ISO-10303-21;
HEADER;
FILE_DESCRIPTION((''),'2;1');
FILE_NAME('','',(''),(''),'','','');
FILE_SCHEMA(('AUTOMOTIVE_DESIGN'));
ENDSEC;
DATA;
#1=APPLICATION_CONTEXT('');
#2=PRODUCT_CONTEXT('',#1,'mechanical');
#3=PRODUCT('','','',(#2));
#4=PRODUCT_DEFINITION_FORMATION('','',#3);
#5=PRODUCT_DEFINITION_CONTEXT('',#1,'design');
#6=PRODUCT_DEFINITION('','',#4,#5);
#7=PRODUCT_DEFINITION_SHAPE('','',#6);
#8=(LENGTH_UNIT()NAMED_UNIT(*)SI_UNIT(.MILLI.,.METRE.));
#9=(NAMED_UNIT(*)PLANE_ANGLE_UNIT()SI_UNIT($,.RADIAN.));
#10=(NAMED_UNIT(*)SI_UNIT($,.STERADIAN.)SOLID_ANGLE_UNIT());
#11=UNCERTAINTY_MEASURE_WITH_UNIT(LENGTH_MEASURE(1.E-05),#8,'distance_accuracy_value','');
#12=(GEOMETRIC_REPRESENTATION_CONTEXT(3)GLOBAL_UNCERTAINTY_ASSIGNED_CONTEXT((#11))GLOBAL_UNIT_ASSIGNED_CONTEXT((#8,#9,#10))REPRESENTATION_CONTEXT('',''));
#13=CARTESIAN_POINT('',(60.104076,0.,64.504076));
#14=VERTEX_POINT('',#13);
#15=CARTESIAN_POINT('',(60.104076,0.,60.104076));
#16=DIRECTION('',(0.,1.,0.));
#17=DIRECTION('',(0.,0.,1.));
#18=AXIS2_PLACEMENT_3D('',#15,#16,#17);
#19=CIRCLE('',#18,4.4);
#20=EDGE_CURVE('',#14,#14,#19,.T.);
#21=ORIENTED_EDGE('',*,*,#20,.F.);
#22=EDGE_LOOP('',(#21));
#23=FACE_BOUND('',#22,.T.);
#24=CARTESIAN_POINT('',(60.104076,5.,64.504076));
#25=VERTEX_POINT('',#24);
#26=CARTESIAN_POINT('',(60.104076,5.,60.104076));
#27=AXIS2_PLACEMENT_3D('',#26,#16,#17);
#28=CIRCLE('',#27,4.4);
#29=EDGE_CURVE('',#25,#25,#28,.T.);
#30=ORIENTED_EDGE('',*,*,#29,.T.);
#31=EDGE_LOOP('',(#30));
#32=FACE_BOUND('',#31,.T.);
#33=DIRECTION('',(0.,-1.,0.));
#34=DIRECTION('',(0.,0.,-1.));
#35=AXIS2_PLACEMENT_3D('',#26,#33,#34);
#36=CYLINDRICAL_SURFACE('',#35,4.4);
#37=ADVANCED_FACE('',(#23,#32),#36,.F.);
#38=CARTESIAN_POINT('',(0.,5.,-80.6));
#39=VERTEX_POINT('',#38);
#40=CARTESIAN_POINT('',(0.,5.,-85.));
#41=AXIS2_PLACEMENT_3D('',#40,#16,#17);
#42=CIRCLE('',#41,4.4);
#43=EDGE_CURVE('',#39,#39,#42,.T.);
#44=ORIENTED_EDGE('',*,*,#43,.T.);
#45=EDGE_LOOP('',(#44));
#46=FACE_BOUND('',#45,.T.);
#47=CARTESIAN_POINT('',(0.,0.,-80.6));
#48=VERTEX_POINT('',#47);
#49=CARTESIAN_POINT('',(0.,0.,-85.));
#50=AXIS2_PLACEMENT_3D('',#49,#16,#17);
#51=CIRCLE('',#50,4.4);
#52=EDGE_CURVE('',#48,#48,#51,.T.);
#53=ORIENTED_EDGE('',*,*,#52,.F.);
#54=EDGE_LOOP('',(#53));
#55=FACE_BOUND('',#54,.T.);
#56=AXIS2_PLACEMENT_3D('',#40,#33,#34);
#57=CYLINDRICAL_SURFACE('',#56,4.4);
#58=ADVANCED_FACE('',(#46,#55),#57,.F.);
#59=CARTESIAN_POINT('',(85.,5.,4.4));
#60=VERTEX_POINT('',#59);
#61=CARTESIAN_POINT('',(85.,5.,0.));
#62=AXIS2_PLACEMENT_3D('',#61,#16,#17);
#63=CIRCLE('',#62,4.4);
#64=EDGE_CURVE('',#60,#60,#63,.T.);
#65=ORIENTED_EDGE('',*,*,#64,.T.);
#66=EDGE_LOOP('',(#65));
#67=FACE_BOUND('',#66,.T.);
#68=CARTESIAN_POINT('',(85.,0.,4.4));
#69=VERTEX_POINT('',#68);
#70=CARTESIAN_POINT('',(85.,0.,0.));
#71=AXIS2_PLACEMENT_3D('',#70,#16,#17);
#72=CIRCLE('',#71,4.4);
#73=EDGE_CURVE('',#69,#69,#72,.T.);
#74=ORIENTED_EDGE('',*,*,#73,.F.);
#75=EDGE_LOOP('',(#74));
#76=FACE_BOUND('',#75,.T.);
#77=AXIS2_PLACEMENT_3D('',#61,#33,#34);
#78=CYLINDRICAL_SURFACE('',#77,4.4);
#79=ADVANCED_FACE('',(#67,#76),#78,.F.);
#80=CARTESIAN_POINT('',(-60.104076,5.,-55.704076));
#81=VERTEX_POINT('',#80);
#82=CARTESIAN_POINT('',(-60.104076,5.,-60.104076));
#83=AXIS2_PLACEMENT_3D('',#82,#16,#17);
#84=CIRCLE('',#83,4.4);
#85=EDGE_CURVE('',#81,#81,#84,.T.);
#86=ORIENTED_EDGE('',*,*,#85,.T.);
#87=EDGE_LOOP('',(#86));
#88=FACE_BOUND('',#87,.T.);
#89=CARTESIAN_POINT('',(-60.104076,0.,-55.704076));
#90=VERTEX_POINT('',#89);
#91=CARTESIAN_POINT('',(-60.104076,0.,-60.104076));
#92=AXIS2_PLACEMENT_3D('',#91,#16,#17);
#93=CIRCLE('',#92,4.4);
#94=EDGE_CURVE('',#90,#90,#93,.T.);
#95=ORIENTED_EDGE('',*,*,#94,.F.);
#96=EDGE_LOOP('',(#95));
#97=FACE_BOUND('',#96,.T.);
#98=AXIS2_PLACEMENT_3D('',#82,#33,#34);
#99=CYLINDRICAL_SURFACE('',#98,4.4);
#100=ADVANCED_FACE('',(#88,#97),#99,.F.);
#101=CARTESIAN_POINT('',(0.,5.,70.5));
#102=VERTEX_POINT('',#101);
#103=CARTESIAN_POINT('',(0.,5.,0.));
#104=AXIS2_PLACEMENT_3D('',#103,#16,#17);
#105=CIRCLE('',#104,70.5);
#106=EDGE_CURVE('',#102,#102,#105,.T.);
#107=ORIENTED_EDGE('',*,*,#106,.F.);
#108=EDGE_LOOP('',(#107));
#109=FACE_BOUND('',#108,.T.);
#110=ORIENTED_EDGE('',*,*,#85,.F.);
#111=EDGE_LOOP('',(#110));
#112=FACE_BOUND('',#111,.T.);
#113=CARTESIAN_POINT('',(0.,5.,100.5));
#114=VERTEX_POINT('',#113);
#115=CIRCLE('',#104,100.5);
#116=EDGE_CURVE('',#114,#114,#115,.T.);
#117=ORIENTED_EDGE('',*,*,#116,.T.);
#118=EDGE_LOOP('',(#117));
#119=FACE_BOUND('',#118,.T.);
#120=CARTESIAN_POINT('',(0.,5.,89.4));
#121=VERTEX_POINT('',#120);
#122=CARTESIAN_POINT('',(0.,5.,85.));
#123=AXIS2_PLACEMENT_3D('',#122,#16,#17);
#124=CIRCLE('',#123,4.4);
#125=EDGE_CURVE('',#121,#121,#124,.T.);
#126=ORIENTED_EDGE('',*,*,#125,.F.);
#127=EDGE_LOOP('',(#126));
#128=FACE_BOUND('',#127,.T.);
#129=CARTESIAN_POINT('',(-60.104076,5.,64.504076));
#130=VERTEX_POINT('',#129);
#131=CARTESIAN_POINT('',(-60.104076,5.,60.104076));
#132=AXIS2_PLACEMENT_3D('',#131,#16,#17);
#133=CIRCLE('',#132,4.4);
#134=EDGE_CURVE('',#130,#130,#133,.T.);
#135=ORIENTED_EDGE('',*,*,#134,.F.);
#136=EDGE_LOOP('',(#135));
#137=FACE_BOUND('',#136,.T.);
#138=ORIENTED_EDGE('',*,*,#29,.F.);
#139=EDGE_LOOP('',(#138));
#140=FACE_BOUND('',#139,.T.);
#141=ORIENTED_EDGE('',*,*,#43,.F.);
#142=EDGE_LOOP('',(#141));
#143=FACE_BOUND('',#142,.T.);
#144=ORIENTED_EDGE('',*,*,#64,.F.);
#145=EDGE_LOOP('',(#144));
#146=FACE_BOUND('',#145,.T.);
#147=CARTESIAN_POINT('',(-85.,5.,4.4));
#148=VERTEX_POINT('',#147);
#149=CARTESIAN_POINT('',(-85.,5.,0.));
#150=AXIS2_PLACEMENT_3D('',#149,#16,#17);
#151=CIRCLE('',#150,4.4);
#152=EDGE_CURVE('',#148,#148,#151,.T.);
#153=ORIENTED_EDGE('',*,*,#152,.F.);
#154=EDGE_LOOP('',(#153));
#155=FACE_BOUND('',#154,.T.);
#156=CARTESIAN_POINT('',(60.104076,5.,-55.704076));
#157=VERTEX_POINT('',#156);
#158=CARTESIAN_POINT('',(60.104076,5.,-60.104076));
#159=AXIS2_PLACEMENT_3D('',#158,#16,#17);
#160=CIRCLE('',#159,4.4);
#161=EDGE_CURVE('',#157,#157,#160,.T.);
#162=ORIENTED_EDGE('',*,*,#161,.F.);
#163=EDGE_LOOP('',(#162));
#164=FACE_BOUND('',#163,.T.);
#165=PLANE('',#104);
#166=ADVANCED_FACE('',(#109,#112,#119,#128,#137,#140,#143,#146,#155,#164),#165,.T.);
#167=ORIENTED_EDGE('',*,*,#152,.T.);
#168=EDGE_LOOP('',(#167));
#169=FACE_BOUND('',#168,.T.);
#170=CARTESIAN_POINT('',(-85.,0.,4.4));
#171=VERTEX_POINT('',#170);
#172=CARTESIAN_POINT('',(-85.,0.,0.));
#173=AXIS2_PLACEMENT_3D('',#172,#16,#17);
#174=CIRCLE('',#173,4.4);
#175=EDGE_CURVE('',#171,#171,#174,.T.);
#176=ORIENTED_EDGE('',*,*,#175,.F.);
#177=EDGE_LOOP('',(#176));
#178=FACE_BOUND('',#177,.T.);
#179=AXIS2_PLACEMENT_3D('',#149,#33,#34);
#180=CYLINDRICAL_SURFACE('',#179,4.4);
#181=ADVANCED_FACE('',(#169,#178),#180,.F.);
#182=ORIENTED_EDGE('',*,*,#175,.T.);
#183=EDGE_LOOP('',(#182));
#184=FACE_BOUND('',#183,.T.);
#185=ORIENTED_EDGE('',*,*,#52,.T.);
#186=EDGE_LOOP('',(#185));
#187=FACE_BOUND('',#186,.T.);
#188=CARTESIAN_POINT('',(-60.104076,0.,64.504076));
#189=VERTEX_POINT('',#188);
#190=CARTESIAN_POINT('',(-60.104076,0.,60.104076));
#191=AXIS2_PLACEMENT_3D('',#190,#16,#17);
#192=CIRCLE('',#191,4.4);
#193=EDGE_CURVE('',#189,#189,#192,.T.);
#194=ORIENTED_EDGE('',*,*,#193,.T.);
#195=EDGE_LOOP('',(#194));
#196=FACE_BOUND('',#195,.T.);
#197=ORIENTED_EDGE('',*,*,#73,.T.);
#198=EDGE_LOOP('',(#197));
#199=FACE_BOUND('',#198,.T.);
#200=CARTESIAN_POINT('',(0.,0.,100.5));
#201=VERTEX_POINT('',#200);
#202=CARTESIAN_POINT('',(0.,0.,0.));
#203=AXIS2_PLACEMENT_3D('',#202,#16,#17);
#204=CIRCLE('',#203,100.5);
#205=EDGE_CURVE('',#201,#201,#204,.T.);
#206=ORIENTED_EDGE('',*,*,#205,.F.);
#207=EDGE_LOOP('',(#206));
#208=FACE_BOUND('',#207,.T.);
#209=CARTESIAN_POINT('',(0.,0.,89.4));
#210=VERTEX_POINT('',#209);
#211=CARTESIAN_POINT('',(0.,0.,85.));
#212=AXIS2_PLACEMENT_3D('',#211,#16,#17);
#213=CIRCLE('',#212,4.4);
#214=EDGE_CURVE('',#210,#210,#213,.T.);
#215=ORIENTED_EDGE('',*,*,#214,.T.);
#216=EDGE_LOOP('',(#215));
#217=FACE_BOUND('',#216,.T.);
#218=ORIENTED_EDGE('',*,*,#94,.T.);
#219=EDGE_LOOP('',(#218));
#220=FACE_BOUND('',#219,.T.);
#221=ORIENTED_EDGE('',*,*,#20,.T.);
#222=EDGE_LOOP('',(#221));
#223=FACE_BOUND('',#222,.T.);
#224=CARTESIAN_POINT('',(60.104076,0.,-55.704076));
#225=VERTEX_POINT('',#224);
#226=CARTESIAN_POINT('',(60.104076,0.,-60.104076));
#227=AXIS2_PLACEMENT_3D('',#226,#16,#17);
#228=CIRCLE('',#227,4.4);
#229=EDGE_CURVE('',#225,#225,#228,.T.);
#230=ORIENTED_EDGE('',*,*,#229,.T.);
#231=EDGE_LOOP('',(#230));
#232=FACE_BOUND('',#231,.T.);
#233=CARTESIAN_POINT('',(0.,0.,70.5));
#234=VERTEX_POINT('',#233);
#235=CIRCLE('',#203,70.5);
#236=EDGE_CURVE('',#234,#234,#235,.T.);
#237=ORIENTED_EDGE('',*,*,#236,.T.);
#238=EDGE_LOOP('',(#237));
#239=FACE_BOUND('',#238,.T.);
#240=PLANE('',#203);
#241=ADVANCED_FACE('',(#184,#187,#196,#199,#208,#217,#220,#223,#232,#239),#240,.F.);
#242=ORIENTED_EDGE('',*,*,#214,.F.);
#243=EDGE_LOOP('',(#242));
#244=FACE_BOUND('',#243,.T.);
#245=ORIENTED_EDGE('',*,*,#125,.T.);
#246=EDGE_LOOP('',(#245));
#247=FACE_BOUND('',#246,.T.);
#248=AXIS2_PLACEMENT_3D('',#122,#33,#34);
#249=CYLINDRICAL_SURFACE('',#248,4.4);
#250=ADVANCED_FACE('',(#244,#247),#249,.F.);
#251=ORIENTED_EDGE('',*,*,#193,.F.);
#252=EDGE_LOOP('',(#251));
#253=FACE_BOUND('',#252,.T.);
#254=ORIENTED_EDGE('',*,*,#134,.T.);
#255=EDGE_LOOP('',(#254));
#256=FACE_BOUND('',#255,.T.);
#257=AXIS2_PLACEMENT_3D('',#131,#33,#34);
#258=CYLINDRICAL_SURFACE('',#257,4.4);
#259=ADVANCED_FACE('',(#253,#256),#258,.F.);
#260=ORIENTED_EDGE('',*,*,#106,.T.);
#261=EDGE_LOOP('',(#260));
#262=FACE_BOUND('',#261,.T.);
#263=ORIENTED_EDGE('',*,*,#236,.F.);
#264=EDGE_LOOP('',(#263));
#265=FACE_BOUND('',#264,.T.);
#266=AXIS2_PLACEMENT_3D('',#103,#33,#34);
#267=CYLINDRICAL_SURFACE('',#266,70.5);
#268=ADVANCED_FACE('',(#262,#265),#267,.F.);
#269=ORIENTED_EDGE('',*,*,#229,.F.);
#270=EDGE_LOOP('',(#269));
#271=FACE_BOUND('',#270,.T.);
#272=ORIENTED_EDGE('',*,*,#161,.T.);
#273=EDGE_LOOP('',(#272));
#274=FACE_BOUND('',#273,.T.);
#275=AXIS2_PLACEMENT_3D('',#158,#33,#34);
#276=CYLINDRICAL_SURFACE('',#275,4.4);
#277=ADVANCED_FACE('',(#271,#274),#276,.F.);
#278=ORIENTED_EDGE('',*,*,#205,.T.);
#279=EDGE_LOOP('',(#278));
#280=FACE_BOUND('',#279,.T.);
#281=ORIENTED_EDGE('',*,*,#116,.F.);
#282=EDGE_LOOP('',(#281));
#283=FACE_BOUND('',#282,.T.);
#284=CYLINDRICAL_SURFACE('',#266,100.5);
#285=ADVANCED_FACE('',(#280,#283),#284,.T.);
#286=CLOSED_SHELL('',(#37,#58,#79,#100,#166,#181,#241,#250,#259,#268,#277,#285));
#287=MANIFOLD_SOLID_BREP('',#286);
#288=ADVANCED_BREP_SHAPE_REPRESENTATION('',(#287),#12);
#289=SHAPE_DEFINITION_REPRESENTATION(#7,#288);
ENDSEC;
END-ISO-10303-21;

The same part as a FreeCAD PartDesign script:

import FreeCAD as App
import Part
import Sketcher

V = App.Vector
Q = App.Units.Quantity

doc = App.newDocument("Part")
body = doc.addObject("PartDesign::Body", "Body")

# Sketch on XZ plane
sketch1 = body.newObject("Sketcher::SketchObject", "Sketch")
sketch1.AttachmentSupport = (doc.getObject("XZ_Plane"), [""])
sketch1.MapMode = "FlatFace"
sketch1.addGeometry([
    Part.Circle(V(0, 0, 0), V(0, 0, 1), 100.5),  # 0
    Part.Circle(V(-60.1, -60.1, 0), V(0, 0, 1), 4.4),  # 1
    Part.Circle(V(0, -85, 0), V(0, 0, 1), 4.4),  # 2
    Part.Circle(V(-85, 0, 0), V(0, 0, 1), 4.4),  # 3
    Part.Circle(V(-60.1, 60.1, 0), V(0, 0, 1), 4.4),  # 4
    Part.Circle(V(60.1, -60.1, 0), V(0, 0, 1), 4.4),  # 5
    Part.Circle(V(85, 0, 0), V(0, 0, 1), 4.4),  # 6
    Part.Circle(V(0, 0, 0), V(0, 0, 1), 70.5),  # 7
    Part.Circle(V(0, 85, 0), V(0, 0, 1), 4.4),  # 8
    Part.Circle(V(60.1, 60.1, 0), V(0, 0, 1), 4.4),  # 9
], False)
sketch1.addConstraint([
    Sketcher.Constraint("Coincident", 0, 3, -1, 1),
    Sketcher.Constraint("Coincident", 7, 3, -1, 1),
    Sketcher.Constraint("Equal", 1, 2),
    Sketcher.Constraint("Equal", 2, 3),
    Sketcher.Constraint("Equal", 3, 4),
    Sketcher.Constraint("Equal", 4, 5),
    Sketcher.Constraint("Equal", 5, 6),
    Sketcher.Constraint("Equal", 6, 8),
    Sketcher.Constraint("Equal", 8, 9),
    Sketcher.Constraint("Symmetric", 4, 3, 5, 3, -1, 1),
    Sketcher.Constraint("Symmetric", 3, 3, 6, 3, -1, 1),
    Sketcher.Constraint("Symmetric", 2, 3, 8, 3, -1, 1),
    Sketcher.Constraint("Symmetric", 1, 3, 9, 3, -1, 1),
    Sketcher.Constraint("Symmetric", 1, 3, 5, 3, -2),
    Sketcher.Constraint("PointOnObject", 2, 3, -2),
    Sketcher.Constraint("PointOnObject", 3, 3, -1),
    Sketcher.Constraint("Diameter", 0, Q("201 mm")),
    Sketcher.Constraint("Diameter", 7, Q("141 mm")),
    Sketcher.Constraint("Diameter", 1, Q("8.8 mm")),
    Sketcher.Constraint("DistanceY", 2, 3, -1, 1, Q("85 mm")),
    Sketcher.Constraint("DistanceX", 3, 3, -1, 1, Q("85 mm")),
    Sketcher.Constraint("DistanceX", 1, 3, -1, 1, Q("60.104076 mm")),
    Sketcher.Constraint("DistanceY", 1, 3, -1, 1, Q("60.104076 mm")),
])
pad1 = body.newObject("PartDesign::Pad", "Pad")
pad1.Profile = sketch1
pad1.Length = 5
pad1.Reversed = True

doc.recompute()
